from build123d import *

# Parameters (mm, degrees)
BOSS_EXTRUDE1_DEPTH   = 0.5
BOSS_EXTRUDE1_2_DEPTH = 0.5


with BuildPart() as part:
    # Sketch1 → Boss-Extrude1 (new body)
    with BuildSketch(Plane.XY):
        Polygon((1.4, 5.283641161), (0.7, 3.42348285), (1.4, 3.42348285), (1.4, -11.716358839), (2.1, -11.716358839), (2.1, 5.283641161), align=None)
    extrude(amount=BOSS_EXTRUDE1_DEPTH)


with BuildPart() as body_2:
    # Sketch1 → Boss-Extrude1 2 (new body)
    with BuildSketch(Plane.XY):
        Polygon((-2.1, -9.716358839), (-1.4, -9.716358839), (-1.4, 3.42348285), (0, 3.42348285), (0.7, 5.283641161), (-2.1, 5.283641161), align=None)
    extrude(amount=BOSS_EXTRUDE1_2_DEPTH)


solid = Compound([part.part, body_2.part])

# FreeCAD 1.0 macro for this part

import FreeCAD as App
import Part
import Sketcher
Q = App.Units.Quantity

doc = App.newDocument("Part")
params = doc.addObject("Spreadsheet::Sheet", "Params")
for row, (alias, value) in enumerate([
    ("sketch1_height", "17 mm"),
    ("sketch1_width", "0.7 mm"),
    ("pad1_length", "0.5 mm"),
    ("sketch2_height", "15 mm"),
    ("sketch2_width", "0.7 mm"),
    ("sketch2_width2", "1.4 mm"),
    ("sketch2_width3", "2.8 mm"),
    ("pad2_length", "0.5 mm"),
], start=1):
    params.set(f"A{row}", alias)
    params.set(f"B{row}", "=" + value)
    params.setAlias(f"B{row}", alias)

body = doc.addObject("PartDesign::Body", "Body")

# Sketch on XY plane
sketch1 = doc.addObject("Sketcher::SketchObject", "Sketch")
body.addObject(sketch1)
sketch1.AttachmentSupport = (doc.XY_Plane, [""])
sketch1.MapMode = "FlatFace"
sketch1.addGeometry([
    Part.LineSegment(App.Vector(1.4, 5.283641, 0), App.Vector(0.7, 3.423483, 0)),  # 0
    Part.LineSegment(App.Vector(0.7, 3.423483, 0), App.Vector(1.4, 3.423483, 0)),  # 1
    Part.LineSegment(App.Vector(1.4, 3.423483, 0), App.Vector(1.4, -11.716359, 0)),  # 2
    Part.LineSegment(App.Vector(1.4, -11.716359, 0), App.Vector(2.1, -11.716359, 0)),  # 3
    Part.LineSegment(App.Vector(2.1, -11.716359, 0), App.Vector(2.1, 5.283641, 0)),  # 4
    Part.LineSegment(App.Vector(2.1, 5.283641, 0), App.Vector(1.4, 5.283641, 0)),  # 5
], False)
sketch1.addConstraint([
    Sketcher.Constraint("Coincident", 0, 2, 1, 1),
    Sketcher.Constraint("Coincident", 1, 2, 2, 1),
    Sketcher.Constraint("Coincident", 2, 2, 3, 1),
    Sketcher.Constraint("Coincident", 3, 2, 4, 1),
    Sketcher.Constraint("Coincident", 4, 2, 5, 1),
    Sketcher.Constraint("Coincident", 5, 2, 0, 1),
    Sketcher.Constraint("Horizontal", 1),
    Sketcher.Constraint("Vertical", 2),
    Sketcher.Constraint("Horizontal", 3),
    Sketcher.Constraint("Vertical", 4),
    Sketcher.Constraint("Horizontal", 5),
    Sketcher.Constraint("Vertical", 2, 2, 5, 2),
    Sketcher.Constraint("Equal", 1, 3),
    Sketcher.Constraint("DistanceY", 4, 1, 4, 2, Q("17 mm")),
    Sketcher.Constraint("DistanceX", 1, 1, 1, 2, Q("0.7 mm")),
    Sketcher.Constraint("DistanceX", -1, 1, 0, 2, Q("0.7 mm")),
    Sketcher.Constraint("DistanceY", 2, 2, 2, 1, Q("15.139842 mm")),
    Sketcher.Constraint("DistanceY", 2, 2, -1, 1, Q("11.716359 mm")),
])
sketch1.setExpression("Constraints[13]", "Params.sketch1_height")
sketch1.setExpression("Constraints[14]", "Params.sketch1_width")
pad1 = doc.addObject("PartDesign::Pad", "Pad")
body.addObject(pad1)
pad1.Profile = sketch1
pad1.setExpression("Length", "Params.pad1_length")
body2 = doc.addObject("PartDesign::Body", "Body001")

# Sketch on XY plane
sketch2 = doc.addObject("Sketcher::SketchObject", "Sketch001")
body2.addObject(sketch2)
sketch2.AttachmentSupport = (doc.getObject("XY_Plane001"), [""])
sketch2.MapMode = "FlatFace"
sketch2.addGeometry([
    Part.LineSegment(App.Vector(-2.1, -9.716359, 0), App.Vector(-1.4, -9.716359, 0)),  # 0
    Part.LineSegment(App.Vector(-1.4, -9.716359, 0), App.Vector(-1.4, 3.423483, 0)),  # 1
    Part.LineSegment(App.Vector(-1.4, 3.423483, 0), App.Vector(0, 3.423483, 0)),  # 2
    Part.LineSegment(App.Vector(0, 3.423483, 0), App.Vector(0.7, 5.283641, 0)),  # 3
    Part.LineSegment(App.Vector(0.7, 5.283641, 0), App.Vector(-2.1, 5.283641, 0)),  # 4
    Part.LineSegment(App.Vector(-2.1, 5.283641, 0), App.Vector(-2.1, -9.716359, 0)),  # 5
], False)
sketch2.addConstraint([
    Sketcher.Constraint("Coincident", 0, 2, 1, 1),
    Sketcher.Constraint("Coincident", 1, 2, 2, 1),
    Sketcher.Constraint("Coincident", 2, 2, 3, 1),
    Sketcher.Constraint("Coincident", 3, 2, 4, 1),
    Sketcher.Constraint("Coincident", 4, 2, 5, 1),
    Sketcher.Constraint("Coincident", 5, 2, 0, 1),
    Sketcher.Constraint("Horizontal", 0),
    Sketcher.Constraint("Vertical", 1),
    Sketcher.Constraint("Horizontal", 2),
    Sketcher.Constraint("Horizontal", 4),
    Sketcher.Constraint("Vertical", 5),
    Sketcher.Constraint("PointOnObject", 2, 2, -2),
    Sketcher.Constraint("DistanceY", 5, 2, 5, 1, Q("15 mm")),
    Sketcher.Constraint("DistanceX", 0, 1, 0, 2, Q("0.7 mm")),
    Sketcher.Constraint("DistanceX", 2, 1, 2, 2, Q("1.4 mm")),
    Sketcher.Constraint("DistanceX", 4, 2, 4, 1, Q("2.8 mm")),
    Sketcher.Constraint("DistanceY", 1, 1, 1, 2, Q("13.139842 mm")),
    Sketcher.Constraint("DistanceY", 0, 2, -1, 1, Q("9.716359 mm")),
])
sketch2.setExpression("Constraints[12]", "Params.sketch2_height")
sketch2.setExpression("Constraints[13]", "Params.sketch2_width")
sketch2.setExpression("Constraints[14]", "Params.sketch2_width2")
sketch2.setExpression("Constraints[15]", "Params.sketch2_width3")
pad2 = doc.addObject("PartDesign::Pad", "Pad001")
body2.addObject(pad2)
pad2.Profile = sketch2
pad2.setExpression("Length", "Params.pad2_length")

doc.recompute()
